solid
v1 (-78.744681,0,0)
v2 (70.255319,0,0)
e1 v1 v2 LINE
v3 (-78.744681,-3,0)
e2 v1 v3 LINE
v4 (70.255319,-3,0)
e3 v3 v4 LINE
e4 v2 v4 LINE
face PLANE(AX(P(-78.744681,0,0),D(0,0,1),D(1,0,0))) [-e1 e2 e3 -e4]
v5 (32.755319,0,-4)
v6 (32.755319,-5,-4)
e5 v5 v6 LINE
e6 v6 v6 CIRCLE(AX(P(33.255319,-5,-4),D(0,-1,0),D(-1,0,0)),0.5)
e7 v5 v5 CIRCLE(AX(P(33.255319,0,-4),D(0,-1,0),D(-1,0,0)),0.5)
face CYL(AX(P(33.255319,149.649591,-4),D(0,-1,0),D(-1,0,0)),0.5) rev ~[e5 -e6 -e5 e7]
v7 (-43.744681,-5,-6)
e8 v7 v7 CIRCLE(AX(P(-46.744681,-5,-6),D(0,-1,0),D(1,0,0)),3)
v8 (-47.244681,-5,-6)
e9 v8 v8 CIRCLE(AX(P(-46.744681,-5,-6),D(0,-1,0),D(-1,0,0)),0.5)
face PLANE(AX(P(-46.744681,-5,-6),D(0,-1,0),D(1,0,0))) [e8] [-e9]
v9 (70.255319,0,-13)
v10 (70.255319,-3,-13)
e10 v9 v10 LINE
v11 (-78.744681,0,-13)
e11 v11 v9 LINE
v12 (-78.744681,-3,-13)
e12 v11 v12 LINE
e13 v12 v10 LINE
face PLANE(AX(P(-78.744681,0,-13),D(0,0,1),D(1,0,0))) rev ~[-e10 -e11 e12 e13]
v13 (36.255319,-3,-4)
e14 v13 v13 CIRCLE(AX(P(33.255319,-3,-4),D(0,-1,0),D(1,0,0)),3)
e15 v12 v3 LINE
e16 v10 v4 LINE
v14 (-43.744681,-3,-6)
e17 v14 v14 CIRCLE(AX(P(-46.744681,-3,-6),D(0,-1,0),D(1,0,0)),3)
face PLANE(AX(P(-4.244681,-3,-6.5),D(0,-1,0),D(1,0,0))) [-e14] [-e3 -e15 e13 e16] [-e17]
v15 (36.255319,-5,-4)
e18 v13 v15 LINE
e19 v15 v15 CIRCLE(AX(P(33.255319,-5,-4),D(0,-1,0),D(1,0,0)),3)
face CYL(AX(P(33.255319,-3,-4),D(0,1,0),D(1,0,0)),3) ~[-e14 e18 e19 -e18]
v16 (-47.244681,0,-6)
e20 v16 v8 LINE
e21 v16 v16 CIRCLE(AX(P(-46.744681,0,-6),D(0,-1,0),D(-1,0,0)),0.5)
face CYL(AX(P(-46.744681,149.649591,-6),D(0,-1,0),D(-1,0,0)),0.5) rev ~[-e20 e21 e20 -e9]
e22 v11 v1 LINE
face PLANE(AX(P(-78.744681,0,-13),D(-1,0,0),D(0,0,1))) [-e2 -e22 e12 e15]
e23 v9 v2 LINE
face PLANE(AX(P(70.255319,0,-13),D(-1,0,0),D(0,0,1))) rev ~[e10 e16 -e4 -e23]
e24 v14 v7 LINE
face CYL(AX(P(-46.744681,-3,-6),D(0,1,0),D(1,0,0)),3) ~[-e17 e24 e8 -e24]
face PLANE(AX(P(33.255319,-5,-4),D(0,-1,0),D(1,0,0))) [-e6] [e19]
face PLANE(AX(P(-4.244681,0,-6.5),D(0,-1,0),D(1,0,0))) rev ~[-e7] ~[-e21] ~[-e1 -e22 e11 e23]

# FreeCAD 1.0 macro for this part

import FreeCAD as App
import Part
import Sketcher
from FreeCAD import Vector


def add_polygon(sketch, points):
    """Adds a closed chain of lines whose ends are joined by coincident constraints."""
    first, n = sketch.GeometryCount, len(points)
    for a, b in zip(points, points[1:] + points[:1]):
        sketch.addGeometry(Part.LineSegment(App.Vector(*a, 0), App.Vector(*b, 0)), False)
    for i in range(n):
        sketch.addConstraint(Sketcher.Constraint("Coincident", first + i, 2, first + (i + 1) % n, 1))

doc = App.newDocument("Part")
params = doc.addObject("Spreadsheet::Sheet", "Params")
for row, (alias, value) in enumerate([
    ("sketch1_width", "149 mm"),
    ("sketch1_height", "13 mm"),
    ("pad1_length", "3 mm"),
    ("sketch2_diameter", "6 mm"),
    ("pad2_length", "2 mm"),
    ("sketch3_diameter", "1 mm"),
    ("hole_diameter", "1 mm"),
], start=1):
    params.set(f"A{row}", alias)
    params.set(f"B{row}", "=" + value)
    params.setAlias(f"B{row}", alias)

body = doc.addObject("PartDesign::Body", "Body")

# Sketch on XZ plane
sketch1 = doc.addObject("Sketcher::SketchObject", "Sketch")
body.addObject(sketch1)
sketch1.AttachmentSupport = (doc.XZ_Plane, [""])
sketch1.MapMode = "FlatFace"
add_polygon(sketch1, [(-78.744681, 0), (-78.744681, -13), (70.255319, -13), (70.255319, 0)])  # lines 0-3
sketch1.addConstraint(Sketcher.Constraint("Vertical", 0))
sketch1.addConstraint(Sketcher.Constraint("Horizontal", 1))
sketch1.addConstraint(Sketcher.Constraint("Vertical", 2))
sketch1.addConstraint(Sketcher.Constraint("Horizontal", 3))
sketch1.addConstraint(Sketcher.Constraint("PointOnObject", 2, 2, -1))
sketch1.addConstraint(Sketcher.Constraint("DistanceX", 1, 1, 1, 2, 149.0))
sketch1.addConstraint(Sketcher.Constraint("DistanceY", 0, 2, 0, 1, 13.0))
sketch1.addConstraint(Sketcher.Constraint("DistanceX", 0, 2, -1, 1, 78.744681))
sketch1.setExpression("Constraints[9]", "Params.sketch1_width")
sketch1.setExpression("Constraints[10]", "Params.sketch1_height")
pad1 = doc.addObject("PartDesign::Pad", "Pad")
body.addObject(pad1)
pad1.Profile = sketch1
pad1.setExpression("Length", "Params.pad1_length")

# Sketch on XZ plane
sketch2 = doc.addObject("Sketcher::SketchObject", "Sketch001")
body.addObject(sketch2)
sketch2.AttachmentSupport = (doc.XZ_Plane, [""])
sketch2.MapMode = "FlatFace"
sketch2.AttachmentOffset = App.Placement(Vector(0, 0, 3), App.Rotation())
sketch2.addGeometry(Part.Circle(Vector(-46.744681, -6, 0), Vector(0, 0, 1), 3), False)
sketch2.addGeometry(Part.Circle(Vector(33.255319, -4, 0), Vector(0, 0, 1), 3), False)
sketch2.addConstraint(Sketcher.Constraint("Equal", 0, 1))
sketch2.addConstraint(Sketcher.Constraint("Diameter", 0, 6.0))
sketch2.addConstraint(Sketcher.Constraint("DistanceY", 0, 3, -1, 1, 6.0))
sketch2.addConstraint(Sketcher.Constraint("DistanceY", 1, 3, -1, 1, 4.0))
sketch2.addConstraint(Sketcher.Constraint("DistanceX", 0, 3, 1, 3, 80.0))
sketch2.addConstraint(Sketcher.Constraint("DistanceX", 0, 3, -1, 1, 46.744681))
sketch2.setExpression("Constraints[1]", "Params.sketch2_diameter")
pad2 = doc.addObject("PartDesign::Pad", "Pad001")
body.addObject(pad2)
pad2.Profile = sketch2
pad2.setExpression("Length", "Params.pad2_length")

# Sketch on XZ plane
sketch3 = doc.addObject("Sketcher::SketchObject", "Sketch002")
body.addObject(sketch3)
sketch3.AttachmentSupport = (doc.XZ_Plane, [""])
sketch3.MapMode = "FlatFace"
sketch3.addGeometry(Part.Circle(Vector(-46.744681, -6, 0), Vector(0, 0, 1), 0.5), False)
sketch3.addGeometry(Part.Circle(Vector(33.255319, -4, 0), Vector(0, 0, 1), 0.5), False)
sketch3.addConstraint(Sketcher.Constraint("Equal", 0, 1))
sketch3.addConstraint(Sketcher.Constraint("Diameter", 0, 1.0))
sketch3.addConstraint(Sketcher.Constraint("DistanceY", 0, 3, -1, 1, 6.0))
sketch3.addConstraint(Sketcher.Constraint("DistanceY", 1, 3, -1, 1, 4.0))
sketch3.addConstraint(Sketcher.Constraint("DistanceX", 0, 3, 1, 3, 80.0))
sketch3.addConstraint(Sketcher.Constraint("DistanceX", 0, 3, -1, 1, 46.744681))
sketch3.setExpression("Constraints[1]", "Params.sketch3_diameter")
doc.recompute()
hole = doc.addObject("PartDesign::Hole", "Hole")
body.addObject(hole)
hole.Profile = sketch3
hole.ThreadType = "None"
hole.setExpression("Diameter", "Params.hole_diameter")
hole.DepthType = "ThroughAll"
hole.Reversed = True

doc.recompute()
